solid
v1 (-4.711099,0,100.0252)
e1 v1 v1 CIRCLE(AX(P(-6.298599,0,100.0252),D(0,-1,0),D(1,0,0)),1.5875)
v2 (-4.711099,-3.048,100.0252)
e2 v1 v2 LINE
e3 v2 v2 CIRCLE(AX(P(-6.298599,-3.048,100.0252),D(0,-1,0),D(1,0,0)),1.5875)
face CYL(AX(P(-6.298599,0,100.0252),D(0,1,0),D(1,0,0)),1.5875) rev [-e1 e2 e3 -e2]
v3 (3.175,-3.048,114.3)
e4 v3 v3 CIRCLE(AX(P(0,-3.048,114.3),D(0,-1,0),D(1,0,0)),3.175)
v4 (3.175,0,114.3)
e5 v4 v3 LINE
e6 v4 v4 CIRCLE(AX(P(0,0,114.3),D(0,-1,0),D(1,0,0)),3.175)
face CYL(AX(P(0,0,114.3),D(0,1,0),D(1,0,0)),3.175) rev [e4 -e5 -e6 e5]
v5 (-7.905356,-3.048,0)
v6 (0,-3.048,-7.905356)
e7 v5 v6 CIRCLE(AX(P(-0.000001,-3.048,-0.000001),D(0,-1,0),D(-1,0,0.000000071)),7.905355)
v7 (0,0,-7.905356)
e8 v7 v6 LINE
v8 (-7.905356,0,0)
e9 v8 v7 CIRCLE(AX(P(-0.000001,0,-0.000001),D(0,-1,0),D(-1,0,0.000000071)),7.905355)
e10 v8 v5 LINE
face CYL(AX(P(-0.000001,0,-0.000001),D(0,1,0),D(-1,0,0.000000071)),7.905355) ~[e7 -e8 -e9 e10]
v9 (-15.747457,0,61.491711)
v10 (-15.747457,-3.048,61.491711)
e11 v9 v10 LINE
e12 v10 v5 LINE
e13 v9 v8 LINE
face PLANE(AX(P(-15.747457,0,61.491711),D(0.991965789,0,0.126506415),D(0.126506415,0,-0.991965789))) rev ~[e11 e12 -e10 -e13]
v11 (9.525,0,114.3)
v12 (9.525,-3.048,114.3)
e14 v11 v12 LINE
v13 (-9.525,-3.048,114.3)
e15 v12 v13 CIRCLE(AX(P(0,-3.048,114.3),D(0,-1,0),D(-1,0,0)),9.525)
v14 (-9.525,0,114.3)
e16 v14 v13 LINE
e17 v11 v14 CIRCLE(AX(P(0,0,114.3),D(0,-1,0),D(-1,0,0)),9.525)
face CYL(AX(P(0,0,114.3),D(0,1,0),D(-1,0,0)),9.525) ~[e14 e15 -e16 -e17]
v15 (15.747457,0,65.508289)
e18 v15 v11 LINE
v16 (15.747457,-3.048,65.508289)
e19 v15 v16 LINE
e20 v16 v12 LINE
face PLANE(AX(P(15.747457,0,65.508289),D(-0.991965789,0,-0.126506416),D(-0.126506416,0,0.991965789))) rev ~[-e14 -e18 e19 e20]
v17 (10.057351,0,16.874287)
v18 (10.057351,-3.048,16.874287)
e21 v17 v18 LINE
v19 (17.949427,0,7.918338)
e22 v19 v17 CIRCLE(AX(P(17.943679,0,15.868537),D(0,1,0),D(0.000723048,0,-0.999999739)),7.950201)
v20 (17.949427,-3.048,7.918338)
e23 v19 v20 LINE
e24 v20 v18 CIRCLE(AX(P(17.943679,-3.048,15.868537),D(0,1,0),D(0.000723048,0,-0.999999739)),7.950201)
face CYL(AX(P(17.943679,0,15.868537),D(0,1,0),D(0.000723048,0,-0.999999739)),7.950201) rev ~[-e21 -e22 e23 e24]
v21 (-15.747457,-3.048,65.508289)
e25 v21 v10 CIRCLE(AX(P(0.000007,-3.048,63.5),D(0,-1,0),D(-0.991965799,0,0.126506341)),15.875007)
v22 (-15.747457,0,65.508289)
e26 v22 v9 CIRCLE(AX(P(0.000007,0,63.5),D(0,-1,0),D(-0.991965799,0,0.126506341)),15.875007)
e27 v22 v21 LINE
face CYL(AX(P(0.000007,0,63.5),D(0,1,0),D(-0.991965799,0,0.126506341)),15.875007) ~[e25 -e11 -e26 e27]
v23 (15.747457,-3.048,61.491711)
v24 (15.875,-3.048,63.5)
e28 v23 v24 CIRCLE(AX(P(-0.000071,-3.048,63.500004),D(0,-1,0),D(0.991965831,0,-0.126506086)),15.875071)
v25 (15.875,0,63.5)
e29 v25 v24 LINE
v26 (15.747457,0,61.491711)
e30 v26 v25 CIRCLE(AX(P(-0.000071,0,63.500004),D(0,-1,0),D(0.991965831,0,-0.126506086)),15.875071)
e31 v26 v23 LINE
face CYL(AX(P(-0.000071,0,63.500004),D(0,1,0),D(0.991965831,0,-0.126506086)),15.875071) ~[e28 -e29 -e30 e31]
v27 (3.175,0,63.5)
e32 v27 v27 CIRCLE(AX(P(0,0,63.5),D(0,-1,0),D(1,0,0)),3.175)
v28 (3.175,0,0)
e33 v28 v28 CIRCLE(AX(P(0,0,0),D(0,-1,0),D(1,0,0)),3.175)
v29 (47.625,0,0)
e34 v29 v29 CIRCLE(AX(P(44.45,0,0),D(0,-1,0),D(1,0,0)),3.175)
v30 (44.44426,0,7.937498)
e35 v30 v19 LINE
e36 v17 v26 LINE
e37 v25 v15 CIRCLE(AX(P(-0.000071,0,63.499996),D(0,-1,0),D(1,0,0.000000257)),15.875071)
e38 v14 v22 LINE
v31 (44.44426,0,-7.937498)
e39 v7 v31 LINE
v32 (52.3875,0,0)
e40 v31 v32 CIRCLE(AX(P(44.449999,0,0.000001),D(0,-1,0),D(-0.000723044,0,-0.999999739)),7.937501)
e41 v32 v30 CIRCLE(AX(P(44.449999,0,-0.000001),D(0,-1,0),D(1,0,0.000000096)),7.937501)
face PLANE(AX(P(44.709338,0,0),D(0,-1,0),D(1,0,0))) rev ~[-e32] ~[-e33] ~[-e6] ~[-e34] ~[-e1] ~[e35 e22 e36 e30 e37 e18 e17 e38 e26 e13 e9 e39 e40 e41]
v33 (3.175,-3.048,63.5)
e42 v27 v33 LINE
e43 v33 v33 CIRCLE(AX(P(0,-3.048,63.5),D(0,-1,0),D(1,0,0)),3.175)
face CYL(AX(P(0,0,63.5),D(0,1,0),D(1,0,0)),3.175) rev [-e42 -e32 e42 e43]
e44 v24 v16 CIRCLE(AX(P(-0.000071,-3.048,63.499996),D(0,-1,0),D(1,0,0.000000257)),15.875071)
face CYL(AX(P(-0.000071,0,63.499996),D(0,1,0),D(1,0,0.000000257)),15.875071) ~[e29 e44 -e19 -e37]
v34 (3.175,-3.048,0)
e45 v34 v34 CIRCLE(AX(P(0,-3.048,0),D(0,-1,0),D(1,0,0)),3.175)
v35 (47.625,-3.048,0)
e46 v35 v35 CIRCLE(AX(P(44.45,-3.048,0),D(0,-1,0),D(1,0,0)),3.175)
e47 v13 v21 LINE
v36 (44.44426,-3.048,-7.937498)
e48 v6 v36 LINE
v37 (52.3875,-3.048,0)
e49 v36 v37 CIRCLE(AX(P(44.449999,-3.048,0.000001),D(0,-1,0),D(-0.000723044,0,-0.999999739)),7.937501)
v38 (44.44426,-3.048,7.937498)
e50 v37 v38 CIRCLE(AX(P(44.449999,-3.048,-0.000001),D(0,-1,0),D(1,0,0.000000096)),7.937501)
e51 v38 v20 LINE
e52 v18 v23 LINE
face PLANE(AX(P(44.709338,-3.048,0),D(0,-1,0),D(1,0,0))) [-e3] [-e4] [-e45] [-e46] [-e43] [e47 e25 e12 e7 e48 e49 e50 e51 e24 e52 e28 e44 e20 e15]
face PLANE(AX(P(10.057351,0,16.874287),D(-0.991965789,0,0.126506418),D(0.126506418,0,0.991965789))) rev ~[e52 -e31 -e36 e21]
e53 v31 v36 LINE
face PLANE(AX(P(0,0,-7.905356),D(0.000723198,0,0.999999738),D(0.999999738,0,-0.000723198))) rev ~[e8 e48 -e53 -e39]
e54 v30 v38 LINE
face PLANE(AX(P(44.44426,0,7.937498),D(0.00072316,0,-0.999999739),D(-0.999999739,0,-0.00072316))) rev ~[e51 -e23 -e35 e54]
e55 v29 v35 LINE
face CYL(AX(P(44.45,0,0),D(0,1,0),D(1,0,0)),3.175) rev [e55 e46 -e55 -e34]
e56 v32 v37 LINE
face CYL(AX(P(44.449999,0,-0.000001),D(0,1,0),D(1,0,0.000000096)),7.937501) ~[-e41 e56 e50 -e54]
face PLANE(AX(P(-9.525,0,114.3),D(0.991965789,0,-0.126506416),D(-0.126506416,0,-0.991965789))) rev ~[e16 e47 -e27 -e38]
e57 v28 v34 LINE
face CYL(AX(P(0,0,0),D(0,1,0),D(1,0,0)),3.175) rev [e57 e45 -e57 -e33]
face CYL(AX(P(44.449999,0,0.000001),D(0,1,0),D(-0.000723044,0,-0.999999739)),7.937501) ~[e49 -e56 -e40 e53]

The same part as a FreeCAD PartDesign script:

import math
import FreeCAD as App
import Part
import Sketcher
from FreeCAD import Vector
Q = App.Units.Quantity

doc = App.newDocument("Part")
body = doc.addObject("PartDesign::Body", "Body")

# Sketch on XZ plane
sketch1 = body.newObject("Sketcher::SketchObject", "Sketch")
sketch1.AttachmentSupport = (doc.getObject("XZ_Plane"), [""])
sketch1.MapMode = "FlatFace"
sketch1.addGeometry(Part.ArcOfCircle(Part.Circle(Vector(44.449999, 0.000001, 0), Vector(0, 0, 1), 7.937501), math.radians(-90.041427), math.radians(-0.000006)), False)
sketch1.addGeometry(Part.ArcOfCircle(Part.Circle(Vector(44.449999, -0.000001, 0), Vector(0, 0, 1), 7.937501), math.radians(0.000006), math.radians(90.041427)), False)
sketch1.addGeometry(Part.LineSegment(Vector(44.44426, 7.937498, 0), Vector(17.949427, 7.918338, 0)), False)
sketch1.addGeometry(Part.ArcOfCircle(Part.Circle(Vector(17.943679, 15.868537, 0), Vector(0, 0, 1), 7.950201), math.radians(172.732252), math.radians(270.041428)), False)
sketch1.addGeometry(Part.LineSegment(Vector(10.057351, 16.874287, 0), Vector(15.747457, 61.491711, 0)), False)
sketch1.addGeometry(Part.ArcOfCircle(Part.Circle(Vector(-0.000071, 63.500004, 0), Vector(0, 0, 1), 15.875071), math.radians(-7.267739), math.radians(-0.000015)), False)
sketch1.addGeometry(Part.ArcOfCircle(Part.Circle(Vector(-0.000071, 63.499996, 0), Vector(0, 0, 1), 15.875071), math.radians(0.000015), math.radians(7.267739)), False)
sketch1.addGeometry(Part.LineSegment(Vector(15.747457, 65.508289, 0), Vector(9.525, 114.3, 0)), False)
sketch1.addGeometry(Part.ArcOfCircle(Part.Circle(Vector(0, 114.3, 0), Vector(0, 0, 1), 9.525), math.radians(0), math.radians(180)), False)
sketch1.addGeometry(Part.LineSegment(Vector(-9.525, 114.3, 0), Vector(-15.747457, 65.508289, 0)), False)
sketch1.addGeometry(Part.ArcOfCircle(Part.Circle(Vector(0.000007, 63.5, 0), Vector(0, 0, 1), 15.875007), math.radians(172.732247), math.radians(187.267753)), False)
sketch1.addGeometry(Part.LineSegment(Vector(-15.747457, 61.491711, 0), Vector(-7.905356, 0, 0)), False)
sketch1.addGeometry(Part.ArcOfCircle(Part.Circle(Vector(-0.000001, -0.000001, 0), Vector(0, 0, 1), 7.905355), math.radians(179.999996), math.radians(270.000004)), False)
sketch1.addGeometry(Part.LineSegment(Vector(0, -7.905356, 0), Vector(44.44426, -7.937498, 0)), False)
sketch1.addGeometry(Part.Circle(Vector(0, 0, 0), Vector(0, 0, 1), 3.175), False)
sketch1.addGeometry(Part.Circle(Vector(44.45, 0, 0), Vector(0, 0, 1), 3.175), False)
sketch1.addGeometry(Part.Circle(Vector(0, 63.5, 0), Vector(0, 0, 1), 3.175), False)
sketch1.addGeometry(Part.Circle(Vector(-6.298599, 100.0252, 0), Vector(0, 0, 1), 1.5875), False)
sketch1.addGeometry(Part.Circle(Vector(0, 114.3, 0), Vector(0, 0, 1), 3.175), False)
sketch1.addConstraint(Sketcher.Constraint("Coincident", 0, 2, 1, 1))
sketch1.addConstraint(Sketcher.Constraint("Coincident", 1, 2, 2, 1))
sketch1.addConstraint(Sketcher.Constraint("Coincident", 2, 2, 3, 2))
sketch1.addConstraint(Sketcher.Constraint("Coincident", 3, 1, 4, 1))
sketch1.addConstraint(Sketcher.Constraint("Coincident", 4, 2, 5, 1))
sketch1.addConstraint(Sketcher.Constraint("Coincident", 5, 2, 6, 1))
sketch1.addConstraint(Sketcher.Constraint("Coincident", 6, 2, 7, 1))
sketch1.addConstraint(Sketcher.Constraint("Coincident", 7, 2, 8, 1))
sketch1.addConstraint(Sketcher.Constraint("Coincident", 8, 2, 9, 1))
sketch1.addConstraint(Sketcher.Constraint("Coincident", 9, 2, 10, 1))
sketch1.addConstraint(Sketcher.Constraint("Coincident", 10, 2, 11, 1))
sketch1.addConstraint(Sketcher.Constraint("Coincident", 11, 2, 12, 1))
sketch1.addConstraint(Sketcher.Constraint("Coincident", 12, 2, 13, 1))
sketch1.addConstraint(Sketcher.Constraint("Coincident", 13, 2, 0, 1))
sketch1.addConstraint(Sketcher.Constraint("Coincident", 12, 3, -1, 1))
sketch1.addConstraint(Sketcher.Constraint("Coincident", 14, 3, -1, 1))
sketch1.addConstraint(Sketcher.Constraint("Coincident", 1, 3, 0, 3))
sketch1.addConstraint(Sketcher.Constraint("Coincident", 6, 3, 5, 3))
sketch1.addConstraint(Sketcher.Constraint("Coincident", 15, 3, 0, 3))
sketch1.addConstraint(Sketcher.Constraint("Coincident", 16, 3, 10, 3))
sketch1.addConstraint(Sketcher.Constraint("Coincident", 18, 3, 8, 3))
sketch1.addConstraint(Sketcher.Constraint("PointOnObject", 0, 3, -1))
sketch1.addConstraint(Sketcher.Constraint("PointOnObject", 8, 3, -2))
sketch1.addConstraint(Sketcher.Constraint("PointOnObject", 16, 3, -2))
sketch1.addConstraint(Sketcher.Constraint("PointOnObject", 0, 2, -1))
sketch1.addConstraint(Sketcher.Constraint("PointOnObject", 11, 2, -1))
sketch1.addConstraint(Sketcher.Constraint("PointOnObject", 12, 2, -2))
sketch1.addConstraint(Sketcher.Constraint("Diameter", 14, Q("0.25 in")))
sketch1.addConstraint(Sketcher.Constraint("Diameter", 15, Q("0.25 in")))
sketch1.addConstraint(Sketcher.Constraint("Diameter", 16, Q("0.25 in")))
sketch1.addConstraint(Sketcher.Constraint("Diameter", 18, Q("0.25 in")))
sketch1.addConstraint(Sketcher.Constraint("Diameter", 17, Q("0.125 in")))
sketch1.addConstraint(Sketcher.Constraint("Radius", 0, Q("0.3125 in")))
sketch1.addConstraint(Sketcher.Constraint("Radius", 3, Q("0.313 in")))
sketch1.addConstraint(Sketcher.Constraint("Radius", 8, Q("0.375 in")))
sketch1.addConstraint(Sketcher.Constraint("DistanceY", 5, 3, 8, 3, Q("1.9999998 in")))
sketch1.addConstraint(Sketcher.Constraint("DistanceY", 10, 3, 8, 3, Q("2 in")))
sketch1.addConstraint(Sketcher.Constraint("DistanceY", 5, 2, 7, 2, Q("2 in")))
sketch1.addConstraint(Sketcher.Constraint("DistanceY", 5, 3, 8, 2, Q("1.9999998 in")))
sketch1.addConstraint(Sketcher.Constraint("DistanceY", -1, 1, 5, 3, Q("2.5000002 in")))
sketch1.addConstraint(Sketcher.Constraint("DistanceY", -1, 1, 5, 2, Q("2.5 in")))
sketch1.addConstraint(Sketcher.Constraint("DistanceX", -1, 1, 0, 3, Q("1.75 in")))
sketch1.addConstraint(Sketcher.Constraint("DistanceX", 7, 2, 5, 2, Q("0.25 in")))
sketch1.addConstraint(Sketcher.Constraint("DistanceY", -1, 1, 17, 3, Q("3.938 in")))
sketch1.addConstraint(Sketcher.Constraint("Radius", 5, Q("15.875071 mm")))
sketch1.addConstraint(Sketcher.Constraint("Radius", 10, Q("15.875007 mm")))
sketch1.addConstraint(Sketcher.Constraint("Radius", 12, Q("7.905355 mm")))
sketch1.addConstraint(Sketcher.Constraint("DistanceX", 17, 3, -1, 1, Q("6.298599 mm")))
sketch1.addConstraint(Sketcher.Constraint("Distance", 2, Q("26.49484 mm")))
sketch1.addConstraint(Sketcher.Constraint("Distance", 7, Q("49.186889 mm")))
sketch1.addConstraint(Sketcher.Constraint("Distance", 9, Q("49.186889 mm")))
sketch1.addConstraint(Sketcher.Constraint("Distance", 11, Q("61.98975 mm")))
sketch1.addConstraint(Sketcher.Constraint("Distance", 13, Q("44.444272 mm")))
sketch1.addConstraint(Sketcher.Constraint("DistanceX", -1, 1, 3, 3, Q("17.943679 mm")))
sketch1.addConstraint(Sketcher.Constraint("DistanceX", -1, 1, 1, 2, Q("44.44426 mm")))
sketch1.addConstraint(Sketcher.Constraint("DistanceY", -1, 1, 2, 2, Q("7.918338 mm")))
sketch1.addConstraint(Sketcher.Constraint("DistanceX", -1, 1, 3, 1, Q("10.057351 mm")))
sketch1.addConstraint(Sketcher.Constraint("DistanceY", -1, 1, 4, 2, Q("61.491711 mm")))
pad1 = body.newObject("PartDesign::Pad", "Pad")
pad1.Profile = sketch1
pad1.Length = Q("0.12 in")

doc.recompute()
